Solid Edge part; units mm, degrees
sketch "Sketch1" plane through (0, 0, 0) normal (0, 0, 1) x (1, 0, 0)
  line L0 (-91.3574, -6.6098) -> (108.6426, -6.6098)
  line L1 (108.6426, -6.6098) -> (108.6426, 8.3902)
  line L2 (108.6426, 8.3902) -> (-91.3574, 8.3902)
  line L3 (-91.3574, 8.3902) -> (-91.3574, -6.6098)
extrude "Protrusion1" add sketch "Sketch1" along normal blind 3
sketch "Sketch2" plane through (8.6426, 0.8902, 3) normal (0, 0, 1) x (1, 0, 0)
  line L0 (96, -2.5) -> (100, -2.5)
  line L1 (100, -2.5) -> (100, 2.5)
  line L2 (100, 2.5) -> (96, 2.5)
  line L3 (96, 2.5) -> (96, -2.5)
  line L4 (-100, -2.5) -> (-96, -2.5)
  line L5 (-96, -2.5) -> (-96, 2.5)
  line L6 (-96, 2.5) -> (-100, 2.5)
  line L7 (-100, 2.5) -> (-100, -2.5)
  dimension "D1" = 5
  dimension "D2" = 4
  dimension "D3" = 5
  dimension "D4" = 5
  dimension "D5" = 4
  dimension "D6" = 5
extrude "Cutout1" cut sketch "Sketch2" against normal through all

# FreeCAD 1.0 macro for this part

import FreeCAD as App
import Part
import Sketcher
from FreeCAD import Vector

doc = App.newDocument("Part")
body = doc.addObject("PartDesign::Body", "Body")

# Sketch on XY plane
sketch1 = body.newObject("Sketcher::SketchObject", "Sketch")
sketch1.AttachmentSupport = (doc.getObject("XY_Plane"), [""])
sketch1.MapMode = "FlatFace"
sketch1.addGeometry(Part.LineSegment(Vector(-91.3574, 8.3902, 0), Vector(-91.3574, -6.6098, 0)), False)
sketch1.addGeometry(Part.LineSegment(Vector(-91.3574, -6.6098, 0), Vector(108.6426, -6.6098, 0)), False)
sketch1.addGeometry(Part.LineSegment(Vector(108.6426, -6.6098, 0), Vector(108.6426, 8.3902, 0)), False)
sketch1.addGeometry(Part.LineSegment(Vector(108.6426, 8.3902, 0), Vector(-91.3574, 8.3902, 0)), False)
sketch1.addConstraint(Sketcher.Constraint("Coincident", 0, 2, 1, 1))
sketch1.addConstraint(Sketcher.Constraint("Coincident", 1, 2, 2, 1))
sketch1.addConstraint(Sketcher.Constraint("Coincident", 2, 2, 3, 1))
sketch1.addConstraint(Sketcher.Constraint("Coincident", 3, 2, 0, 1))
sketch1.addConstraint(Sketcher.Constraint("Vertical", 0))
sketch1.addConstraint(Sketcher.Constraint("Horizontal", 1))
sketch1.addConstraint(Sketcher.Constraint("Vertical", 2))
sketch1.addConstraint(Sketcher.Constraint("Horizontal", 3))
sketch1.addConstraint(Sketcher.Constraint("DistanceX", 1, 1, 1, 2, 200.0))
sketch1.addConstraint(Sketcher.Constraint("DistanceY", 0, 2, 0, 1, 15.0))
sketch1.addConstraint(Sketcher.Constraint("DistanceX", 0, 2, -1, 1, 91.3574))
sketch1.addConstraint(Sketcher.Constraint("DistanceY", 0, 2, -1, 1, 6.6098))
pad1 = body.newObject("PartDesign::Pad", "Pad")
pad1.Profile = sketch1
pad1.Length = 3

# Sketch on XY plane
sketch2 = body.newObject("Sketcher::SketchObject", "Sketch001")
sketch2.AttachmentSupport = (doc.getObject("XY_Plane"), [""])
sketch2.MapMode = "FlatFace"
sketch2.AttachmentOffset = App.Placement(Vector(0, 0, 3), App.Rotation())
sketch2.addGeometry(Part.LineSegment(Vector(104.6426, 3.3902, 0), Vector(104.6426, -1.6098, 0)), False)
sketch2.addGeometry(Part.LineSegment(Vector(104.6426, -1.6098, 0), Vector(108.6426, -1.6098, 0)), False)
sketch2.addGeometry(Part.LineSegment(Vector(108.6426, -1.6098, 0), Vector(108.6426, 3.3902, 0)), False)
sketch2.addGeometry(Part.LineSegment(Vector(108.6426, 3.3902, 0), Vector(104.6426, 3.3902, 0)), False)
sketch2.addGeometry(Part.LineSegment(Vector(-91.3574, 3.3902, 0), Vector(-91.3574, -1.6098, 0)), False)
sketch2.addGeometry(Part.LineSegment(Vector(-91.3574, -1.6098, 0), Vector(-87.3574, -1.6098, 0)), False)
sketch2.addGeometry(Part.LineSegment(Vector(-87.3574, -1.6098, 0), Vector(-87.3574, 3.3902, 0)), False)
sketch2.addGeometry(Part.LineSegment(Vector(-87.3574, 3.3902, 0), Vector(-91.3574, 3.3902, 0)), False)
sketch2.addConstraint(Sketcher.Constraint("Coincident", 0, 2, 1, 1))
sketch2.addConstraint(Sketcher.Constraint("Coincident", 1, 2, 2, 1))
sketch2.addConstraint(Sketcher.Constraint("Coincident", 2, 2, 3, 1))
sketch2.addConstraint(Sketcher.Constraint("Coincident", 3, 2, 0, 1))
sketch2.addConstraint(Sketcher.Constraint("Coincident", 4, 2, 5, 1))
sketch2.addConstraint(Sketcher.Constraint("Coincident", 5, 2, 6, 1))
sketch2.addConstraint(Sketcher.Constraint("Coincident", 6, 2, 7, 1))
sketch2.addConstraint(Sketcher.Constraint("Coincident", 7, 2, 4, 1))
sketch2.addConstraint(Sketcher.Constraint("Vertical", 0))
sketch2.addConstraint(Sketcher.Constraint("Horizontal", 1))
sketch2.addConstraint(Sketcher.Constraint("Vertical", 2))
sketch2.addConstraint(Sketcher.Constraint("Horizontal", 3))
sketch2.addConstraint(Sketcher.Constraint("Vertical", 4))
sketch2.addConstraint(Sketcher.Constraint("Horizontal", 5))
sketch2.addConstraint(Sketcher.Constraint("Vertical", 6))
sketch2.addConstraint(Sketcher.Constraint("Horizontal", 7))
sketch2.addConstraint(Sketcher.Constraint("Horizontal", 1, 2, 4, 2))
sketch2.addConstraint(Sketcher.Constraint("Horizontal", 3, 2, 6, 2))
sketch2.addConstraint(Sketcher.Constraint("Equal", 3, 5))
sketch2.addConstraint(Sketcher.Constraint("DistanceX", 1, 1, 1, 2, 4.0))
sketch2.addConstraint(Sketcher.Constraint("DistanceY", 0, 2, 0, 1, 5.0))
sketch2.addConstraint(Sketcher.Constraint("DistanceX", 4, 2, 0, 2, 196.0))
sketch2.addConstraint(Sketcher.Constraint("DistanceX", -1, 1, 0, 2, 104.6426))
sketch2.addConstraint(Sketcher.Constraint("DistanceY", 0, 2, -1, 1, 1.6098))
pocket1 = body.newObject("PartDesign::Pocket", "Pocket")
pocket1.Profile = sketch2
pocket1.Type = "ThroughAll"

doc.recompute()
